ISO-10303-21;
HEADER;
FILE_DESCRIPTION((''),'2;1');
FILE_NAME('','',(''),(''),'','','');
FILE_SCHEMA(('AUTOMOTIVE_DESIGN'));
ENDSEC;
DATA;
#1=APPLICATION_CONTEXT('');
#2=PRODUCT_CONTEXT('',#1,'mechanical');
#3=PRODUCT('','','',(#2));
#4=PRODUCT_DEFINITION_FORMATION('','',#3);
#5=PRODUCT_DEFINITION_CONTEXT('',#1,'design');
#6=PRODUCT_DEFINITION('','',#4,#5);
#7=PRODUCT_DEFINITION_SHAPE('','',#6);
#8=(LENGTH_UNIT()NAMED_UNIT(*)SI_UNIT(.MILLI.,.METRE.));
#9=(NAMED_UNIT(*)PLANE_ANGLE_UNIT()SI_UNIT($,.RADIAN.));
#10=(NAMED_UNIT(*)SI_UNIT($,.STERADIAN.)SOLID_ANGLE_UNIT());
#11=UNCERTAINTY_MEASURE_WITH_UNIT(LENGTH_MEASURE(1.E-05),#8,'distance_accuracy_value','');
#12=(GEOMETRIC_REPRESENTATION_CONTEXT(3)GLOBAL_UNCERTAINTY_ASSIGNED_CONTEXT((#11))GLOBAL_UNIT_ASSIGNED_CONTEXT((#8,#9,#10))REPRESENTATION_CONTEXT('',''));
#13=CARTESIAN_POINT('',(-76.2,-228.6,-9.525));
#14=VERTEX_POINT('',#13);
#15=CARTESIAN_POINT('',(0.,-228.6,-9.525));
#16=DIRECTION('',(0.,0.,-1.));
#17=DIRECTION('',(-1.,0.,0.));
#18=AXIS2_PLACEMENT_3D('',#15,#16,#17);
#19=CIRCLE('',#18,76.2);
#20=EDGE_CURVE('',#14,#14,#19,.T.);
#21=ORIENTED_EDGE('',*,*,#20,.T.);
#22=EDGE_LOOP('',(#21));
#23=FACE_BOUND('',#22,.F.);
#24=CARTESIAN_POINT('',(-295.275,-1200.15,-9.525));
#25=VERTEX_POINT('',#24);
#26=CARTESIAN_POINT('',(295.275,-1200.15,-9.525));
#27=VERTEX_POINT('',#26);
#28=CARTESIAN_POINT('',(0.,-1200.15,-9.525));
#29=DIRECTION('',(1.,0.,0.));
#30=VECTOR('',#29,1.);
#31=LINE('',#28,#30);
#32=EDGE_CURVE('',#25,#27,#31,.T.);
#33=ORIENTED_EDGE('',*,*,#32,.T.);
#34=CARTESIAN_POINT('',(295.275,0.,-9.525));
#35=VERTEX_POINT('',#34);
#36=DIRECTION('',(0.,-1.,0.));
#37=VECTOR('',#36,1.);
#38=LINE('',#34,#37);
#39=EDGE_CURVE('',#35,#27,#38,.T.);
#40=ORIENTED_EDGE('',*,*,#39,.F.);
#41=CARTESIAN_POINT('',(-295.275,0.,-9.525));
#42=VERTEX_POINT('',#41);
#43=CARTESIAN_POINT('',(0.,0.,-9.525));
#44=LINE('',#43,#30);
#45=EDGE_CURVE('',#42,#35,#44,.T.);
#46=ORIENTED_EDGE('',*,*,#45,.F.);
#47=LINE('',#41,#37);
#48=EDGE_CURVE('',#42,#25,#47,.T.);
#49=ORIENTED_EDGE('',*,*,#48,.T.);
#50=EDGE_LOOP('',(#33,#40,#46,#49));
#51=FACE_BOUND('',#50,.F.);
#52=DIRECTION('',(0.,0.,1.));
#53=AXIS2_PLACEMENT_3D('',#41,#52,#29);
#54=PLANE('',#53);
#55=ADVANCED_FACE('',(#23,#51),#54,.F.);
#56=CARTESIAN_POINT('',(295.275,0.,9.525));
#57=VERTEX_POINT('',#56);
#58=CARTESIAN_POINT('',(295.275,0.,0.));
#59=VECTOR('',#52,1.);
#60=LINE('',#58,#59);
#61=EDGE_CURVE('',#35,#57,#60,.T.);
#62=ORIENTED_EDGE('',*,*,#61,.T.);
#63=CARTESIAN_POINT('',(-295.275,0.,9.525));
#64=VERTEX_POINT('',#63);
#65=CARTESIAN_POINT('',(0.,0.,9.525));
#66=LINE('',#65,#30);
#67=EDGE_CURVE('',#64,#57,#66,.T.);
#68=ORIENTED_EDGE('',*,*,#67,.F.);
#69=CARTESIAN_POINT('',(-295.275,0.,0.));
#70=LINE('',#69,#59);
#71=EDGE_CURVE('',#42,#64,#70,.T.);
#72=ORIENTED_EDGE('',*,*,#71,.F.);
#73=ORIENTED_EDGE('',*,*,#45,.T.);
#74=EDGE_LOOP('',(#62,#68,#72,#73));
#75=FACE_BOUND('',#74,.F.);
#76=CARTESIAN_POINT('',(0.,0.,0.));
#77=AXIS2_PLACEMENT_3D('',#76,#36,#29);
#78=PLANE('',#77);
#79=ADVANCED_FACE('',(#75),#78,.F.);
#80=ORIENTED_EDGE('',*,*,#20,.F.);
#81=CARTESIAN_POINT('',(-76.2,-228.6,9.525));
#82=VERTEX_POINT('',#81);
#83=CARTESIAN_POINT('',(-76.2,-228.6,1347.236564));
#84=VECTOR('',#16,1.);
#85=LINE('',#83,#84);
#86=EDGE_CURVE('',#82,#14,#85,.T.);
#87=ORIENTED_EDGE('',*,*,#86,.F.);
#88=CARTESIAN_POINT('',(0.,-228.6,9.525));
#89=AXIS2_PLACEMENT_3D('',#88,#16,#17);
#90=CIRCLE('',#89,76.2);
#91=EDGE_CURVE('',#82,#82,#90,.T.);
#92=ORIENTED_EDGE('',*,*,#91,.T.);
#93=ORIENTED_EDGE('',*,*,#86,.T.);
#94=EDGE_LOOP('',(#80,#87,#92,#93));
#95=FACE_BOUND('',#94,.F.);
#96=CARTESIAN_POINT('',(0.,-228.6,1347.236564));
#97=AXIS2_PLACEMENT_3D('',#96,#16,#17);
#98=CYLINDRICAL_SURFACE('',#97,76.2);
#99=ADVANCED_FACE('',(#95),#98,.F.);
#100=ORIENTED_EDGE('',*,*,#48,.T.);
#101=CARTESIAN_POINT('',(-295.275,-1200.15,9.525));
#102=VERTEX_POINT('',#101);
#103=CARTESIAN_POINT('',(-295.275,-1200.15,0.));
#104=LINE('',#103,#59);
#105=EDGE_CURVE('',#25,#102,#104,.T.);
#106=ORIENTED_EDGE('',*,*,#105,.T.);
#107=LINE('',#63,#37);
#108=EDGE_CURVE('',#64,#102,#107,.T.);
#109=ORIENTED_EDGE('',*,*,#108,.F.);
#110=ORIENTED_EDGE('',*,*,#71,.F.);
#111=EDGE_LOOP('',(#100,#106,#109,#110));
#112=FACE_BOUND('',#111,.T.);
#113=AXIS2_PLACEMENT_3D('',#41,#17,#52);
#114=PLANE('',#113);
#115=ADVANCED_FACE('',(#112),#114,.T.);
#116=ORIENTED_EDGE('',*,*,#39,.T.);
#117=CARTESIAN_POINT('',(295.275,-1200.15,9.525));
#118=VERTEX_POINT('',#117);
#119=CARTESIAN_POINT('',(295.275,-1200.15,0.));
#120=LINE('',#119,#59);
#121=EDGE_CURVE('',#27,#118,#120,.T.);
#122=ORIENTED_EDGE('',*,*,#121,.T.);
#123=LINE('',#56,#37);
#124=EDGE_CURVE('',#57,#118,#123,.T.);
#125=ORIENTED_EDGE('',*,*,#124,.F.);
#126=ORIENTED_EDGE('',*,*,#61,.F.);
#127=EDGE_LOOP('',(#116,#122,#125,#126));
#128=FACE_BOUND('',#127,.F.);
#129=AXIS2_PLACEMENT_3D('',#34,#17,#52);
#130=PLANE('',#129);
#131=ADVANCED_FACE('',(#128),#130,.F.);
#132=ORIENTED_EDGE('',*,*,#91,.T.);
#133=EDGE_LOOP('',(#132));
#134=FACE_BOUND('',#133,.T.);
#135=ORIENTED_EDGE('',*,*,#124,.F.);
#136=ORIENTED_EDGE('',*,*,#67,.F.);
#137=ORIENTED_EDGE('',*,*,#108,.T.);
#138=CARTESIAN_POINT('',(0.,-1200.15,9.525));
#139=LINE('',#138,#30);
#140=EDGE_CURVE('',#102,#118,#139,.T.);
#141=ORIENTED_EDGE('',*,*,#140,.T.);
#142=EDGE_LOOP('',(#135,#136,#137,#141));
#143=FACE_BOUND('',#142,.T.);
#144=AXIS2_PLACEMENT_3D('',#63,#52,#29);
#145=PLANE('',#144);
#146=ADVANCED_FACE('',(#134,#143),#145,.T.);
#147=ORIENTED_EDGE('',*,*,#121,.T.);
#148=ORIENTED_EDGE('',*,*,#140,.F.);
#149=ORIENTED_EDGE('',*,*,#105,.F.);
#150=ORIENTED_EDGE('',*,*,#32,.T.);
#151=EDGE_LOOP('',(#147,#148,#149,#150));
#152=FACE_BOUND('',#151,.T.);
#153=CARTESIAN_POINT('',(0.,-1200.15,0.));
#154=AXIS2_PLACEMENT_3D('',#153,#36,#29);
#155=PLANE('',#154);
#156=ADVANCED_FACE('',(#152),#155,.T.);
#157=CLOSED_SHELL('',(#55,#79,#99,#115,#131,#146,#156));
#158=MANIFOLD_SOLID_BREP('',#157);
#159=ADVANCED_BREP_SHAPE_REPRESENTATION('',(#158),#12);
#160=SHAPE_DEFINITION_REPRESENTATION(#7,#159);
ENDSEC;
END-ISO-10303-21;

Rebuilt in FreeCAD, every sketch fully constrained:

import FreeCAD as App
import Part
import Sketcher

V = App.Vector
Q = App.Units.Quantity


def add_polygon(sketch, points):
    """Adds a closed chain of lines whose ends are joined by coincident constraints."""
    first, n = sketch.GeometryCount, len(points)
    for a, b in zip(points, points[1:] + points[:1]):
        sketch.addGeometry(Part.LineSegment(App.Vector(*a, 0), App.Vector(*b, 0)), False)
    for i in range(n):
        sketch.addConstraint(Sketcher.Constraint("Coincident", first + i, 2, first + (i + 1) % n, 1))

doc = App.newDocument("Part")
body = doc.addObject("PartDesign::Body", "Body")

# Sketch on XZ plane
sketch1 = body.newObject("Sketcher::SketchObject", "Sketch")
sketch1.AttachmentSupport = (doc.getObject("XZ_Plane"), [""])
sketch1.MapMode = "FlatFace"
add_polygon(sketch1, [(-295, 10), (-295, -10), (295, -10), (295, 10)])  # lines 0-3
sketch1.addConstraint(Sketcher.Constraint("Vertical", 0))
sketch1.addConstraint(Sketcher.Constraint("Horizontal", 1))
sketch1.addConstraint(Sketcher.Constraint("Vertical", 2))
sketch1.addConstraint(Sketcher.Constraint("Horizontal", 3))
sketch1.addConstraint(Sketcher.Constraint("Symmetric", 0, 2, 2, 2, -1, 1))
sketch1.addConstraint(Sketcher.Constraint("DistanceX", 1, 1, 1, 2, Q("23.25 in")))
sketch1.addConstraint(Sketcher.Constraint("DistanceY", 0, 2, 0, 1, Q("0.75 in")))
pad1 = body.newObject("PartDesign::Pad", "Pad")
pad1.Profile = sketch1
pad1.Length = Q("47.25 in")

# Sketch on XY plane
sketch2 = body.newObject("Sketcher::SketchObject", "Sketch001")
sketch2.AttachmentSupport = (doc.getObject("XY_Plane"), [""])
sketch2.MapMode = "FlatFace"
sketch2.AttachmentOffset = App.Placement(V(0, 0, 0.375 * 25.4), App.Rotation())
sketch2.addGeometry(Part.Circle(V(0, -229, 0), V(0, 0, 1), 76), False)
sketch2.addConstraint(Sketcher.Constraint("PointOnObject", 0, 3, -2))
sketch2.addConstraint(Sketcher.Constraint("Diameter", 0, Q("6 in")))
sketch2.addConstraint(Sketcher.Constraint("DistanceY", 0, 3, -1, 1, Q("9 in")))
doc.recompute()
hole = body.newObject("PartDesign::Hole", "Hole")
hole.Profile = sketch2
hole.ThreadType = "None"
hole.Diameter = Q("6 in")
hole.DepthType = "ThroughAll"

doc.recompute()
